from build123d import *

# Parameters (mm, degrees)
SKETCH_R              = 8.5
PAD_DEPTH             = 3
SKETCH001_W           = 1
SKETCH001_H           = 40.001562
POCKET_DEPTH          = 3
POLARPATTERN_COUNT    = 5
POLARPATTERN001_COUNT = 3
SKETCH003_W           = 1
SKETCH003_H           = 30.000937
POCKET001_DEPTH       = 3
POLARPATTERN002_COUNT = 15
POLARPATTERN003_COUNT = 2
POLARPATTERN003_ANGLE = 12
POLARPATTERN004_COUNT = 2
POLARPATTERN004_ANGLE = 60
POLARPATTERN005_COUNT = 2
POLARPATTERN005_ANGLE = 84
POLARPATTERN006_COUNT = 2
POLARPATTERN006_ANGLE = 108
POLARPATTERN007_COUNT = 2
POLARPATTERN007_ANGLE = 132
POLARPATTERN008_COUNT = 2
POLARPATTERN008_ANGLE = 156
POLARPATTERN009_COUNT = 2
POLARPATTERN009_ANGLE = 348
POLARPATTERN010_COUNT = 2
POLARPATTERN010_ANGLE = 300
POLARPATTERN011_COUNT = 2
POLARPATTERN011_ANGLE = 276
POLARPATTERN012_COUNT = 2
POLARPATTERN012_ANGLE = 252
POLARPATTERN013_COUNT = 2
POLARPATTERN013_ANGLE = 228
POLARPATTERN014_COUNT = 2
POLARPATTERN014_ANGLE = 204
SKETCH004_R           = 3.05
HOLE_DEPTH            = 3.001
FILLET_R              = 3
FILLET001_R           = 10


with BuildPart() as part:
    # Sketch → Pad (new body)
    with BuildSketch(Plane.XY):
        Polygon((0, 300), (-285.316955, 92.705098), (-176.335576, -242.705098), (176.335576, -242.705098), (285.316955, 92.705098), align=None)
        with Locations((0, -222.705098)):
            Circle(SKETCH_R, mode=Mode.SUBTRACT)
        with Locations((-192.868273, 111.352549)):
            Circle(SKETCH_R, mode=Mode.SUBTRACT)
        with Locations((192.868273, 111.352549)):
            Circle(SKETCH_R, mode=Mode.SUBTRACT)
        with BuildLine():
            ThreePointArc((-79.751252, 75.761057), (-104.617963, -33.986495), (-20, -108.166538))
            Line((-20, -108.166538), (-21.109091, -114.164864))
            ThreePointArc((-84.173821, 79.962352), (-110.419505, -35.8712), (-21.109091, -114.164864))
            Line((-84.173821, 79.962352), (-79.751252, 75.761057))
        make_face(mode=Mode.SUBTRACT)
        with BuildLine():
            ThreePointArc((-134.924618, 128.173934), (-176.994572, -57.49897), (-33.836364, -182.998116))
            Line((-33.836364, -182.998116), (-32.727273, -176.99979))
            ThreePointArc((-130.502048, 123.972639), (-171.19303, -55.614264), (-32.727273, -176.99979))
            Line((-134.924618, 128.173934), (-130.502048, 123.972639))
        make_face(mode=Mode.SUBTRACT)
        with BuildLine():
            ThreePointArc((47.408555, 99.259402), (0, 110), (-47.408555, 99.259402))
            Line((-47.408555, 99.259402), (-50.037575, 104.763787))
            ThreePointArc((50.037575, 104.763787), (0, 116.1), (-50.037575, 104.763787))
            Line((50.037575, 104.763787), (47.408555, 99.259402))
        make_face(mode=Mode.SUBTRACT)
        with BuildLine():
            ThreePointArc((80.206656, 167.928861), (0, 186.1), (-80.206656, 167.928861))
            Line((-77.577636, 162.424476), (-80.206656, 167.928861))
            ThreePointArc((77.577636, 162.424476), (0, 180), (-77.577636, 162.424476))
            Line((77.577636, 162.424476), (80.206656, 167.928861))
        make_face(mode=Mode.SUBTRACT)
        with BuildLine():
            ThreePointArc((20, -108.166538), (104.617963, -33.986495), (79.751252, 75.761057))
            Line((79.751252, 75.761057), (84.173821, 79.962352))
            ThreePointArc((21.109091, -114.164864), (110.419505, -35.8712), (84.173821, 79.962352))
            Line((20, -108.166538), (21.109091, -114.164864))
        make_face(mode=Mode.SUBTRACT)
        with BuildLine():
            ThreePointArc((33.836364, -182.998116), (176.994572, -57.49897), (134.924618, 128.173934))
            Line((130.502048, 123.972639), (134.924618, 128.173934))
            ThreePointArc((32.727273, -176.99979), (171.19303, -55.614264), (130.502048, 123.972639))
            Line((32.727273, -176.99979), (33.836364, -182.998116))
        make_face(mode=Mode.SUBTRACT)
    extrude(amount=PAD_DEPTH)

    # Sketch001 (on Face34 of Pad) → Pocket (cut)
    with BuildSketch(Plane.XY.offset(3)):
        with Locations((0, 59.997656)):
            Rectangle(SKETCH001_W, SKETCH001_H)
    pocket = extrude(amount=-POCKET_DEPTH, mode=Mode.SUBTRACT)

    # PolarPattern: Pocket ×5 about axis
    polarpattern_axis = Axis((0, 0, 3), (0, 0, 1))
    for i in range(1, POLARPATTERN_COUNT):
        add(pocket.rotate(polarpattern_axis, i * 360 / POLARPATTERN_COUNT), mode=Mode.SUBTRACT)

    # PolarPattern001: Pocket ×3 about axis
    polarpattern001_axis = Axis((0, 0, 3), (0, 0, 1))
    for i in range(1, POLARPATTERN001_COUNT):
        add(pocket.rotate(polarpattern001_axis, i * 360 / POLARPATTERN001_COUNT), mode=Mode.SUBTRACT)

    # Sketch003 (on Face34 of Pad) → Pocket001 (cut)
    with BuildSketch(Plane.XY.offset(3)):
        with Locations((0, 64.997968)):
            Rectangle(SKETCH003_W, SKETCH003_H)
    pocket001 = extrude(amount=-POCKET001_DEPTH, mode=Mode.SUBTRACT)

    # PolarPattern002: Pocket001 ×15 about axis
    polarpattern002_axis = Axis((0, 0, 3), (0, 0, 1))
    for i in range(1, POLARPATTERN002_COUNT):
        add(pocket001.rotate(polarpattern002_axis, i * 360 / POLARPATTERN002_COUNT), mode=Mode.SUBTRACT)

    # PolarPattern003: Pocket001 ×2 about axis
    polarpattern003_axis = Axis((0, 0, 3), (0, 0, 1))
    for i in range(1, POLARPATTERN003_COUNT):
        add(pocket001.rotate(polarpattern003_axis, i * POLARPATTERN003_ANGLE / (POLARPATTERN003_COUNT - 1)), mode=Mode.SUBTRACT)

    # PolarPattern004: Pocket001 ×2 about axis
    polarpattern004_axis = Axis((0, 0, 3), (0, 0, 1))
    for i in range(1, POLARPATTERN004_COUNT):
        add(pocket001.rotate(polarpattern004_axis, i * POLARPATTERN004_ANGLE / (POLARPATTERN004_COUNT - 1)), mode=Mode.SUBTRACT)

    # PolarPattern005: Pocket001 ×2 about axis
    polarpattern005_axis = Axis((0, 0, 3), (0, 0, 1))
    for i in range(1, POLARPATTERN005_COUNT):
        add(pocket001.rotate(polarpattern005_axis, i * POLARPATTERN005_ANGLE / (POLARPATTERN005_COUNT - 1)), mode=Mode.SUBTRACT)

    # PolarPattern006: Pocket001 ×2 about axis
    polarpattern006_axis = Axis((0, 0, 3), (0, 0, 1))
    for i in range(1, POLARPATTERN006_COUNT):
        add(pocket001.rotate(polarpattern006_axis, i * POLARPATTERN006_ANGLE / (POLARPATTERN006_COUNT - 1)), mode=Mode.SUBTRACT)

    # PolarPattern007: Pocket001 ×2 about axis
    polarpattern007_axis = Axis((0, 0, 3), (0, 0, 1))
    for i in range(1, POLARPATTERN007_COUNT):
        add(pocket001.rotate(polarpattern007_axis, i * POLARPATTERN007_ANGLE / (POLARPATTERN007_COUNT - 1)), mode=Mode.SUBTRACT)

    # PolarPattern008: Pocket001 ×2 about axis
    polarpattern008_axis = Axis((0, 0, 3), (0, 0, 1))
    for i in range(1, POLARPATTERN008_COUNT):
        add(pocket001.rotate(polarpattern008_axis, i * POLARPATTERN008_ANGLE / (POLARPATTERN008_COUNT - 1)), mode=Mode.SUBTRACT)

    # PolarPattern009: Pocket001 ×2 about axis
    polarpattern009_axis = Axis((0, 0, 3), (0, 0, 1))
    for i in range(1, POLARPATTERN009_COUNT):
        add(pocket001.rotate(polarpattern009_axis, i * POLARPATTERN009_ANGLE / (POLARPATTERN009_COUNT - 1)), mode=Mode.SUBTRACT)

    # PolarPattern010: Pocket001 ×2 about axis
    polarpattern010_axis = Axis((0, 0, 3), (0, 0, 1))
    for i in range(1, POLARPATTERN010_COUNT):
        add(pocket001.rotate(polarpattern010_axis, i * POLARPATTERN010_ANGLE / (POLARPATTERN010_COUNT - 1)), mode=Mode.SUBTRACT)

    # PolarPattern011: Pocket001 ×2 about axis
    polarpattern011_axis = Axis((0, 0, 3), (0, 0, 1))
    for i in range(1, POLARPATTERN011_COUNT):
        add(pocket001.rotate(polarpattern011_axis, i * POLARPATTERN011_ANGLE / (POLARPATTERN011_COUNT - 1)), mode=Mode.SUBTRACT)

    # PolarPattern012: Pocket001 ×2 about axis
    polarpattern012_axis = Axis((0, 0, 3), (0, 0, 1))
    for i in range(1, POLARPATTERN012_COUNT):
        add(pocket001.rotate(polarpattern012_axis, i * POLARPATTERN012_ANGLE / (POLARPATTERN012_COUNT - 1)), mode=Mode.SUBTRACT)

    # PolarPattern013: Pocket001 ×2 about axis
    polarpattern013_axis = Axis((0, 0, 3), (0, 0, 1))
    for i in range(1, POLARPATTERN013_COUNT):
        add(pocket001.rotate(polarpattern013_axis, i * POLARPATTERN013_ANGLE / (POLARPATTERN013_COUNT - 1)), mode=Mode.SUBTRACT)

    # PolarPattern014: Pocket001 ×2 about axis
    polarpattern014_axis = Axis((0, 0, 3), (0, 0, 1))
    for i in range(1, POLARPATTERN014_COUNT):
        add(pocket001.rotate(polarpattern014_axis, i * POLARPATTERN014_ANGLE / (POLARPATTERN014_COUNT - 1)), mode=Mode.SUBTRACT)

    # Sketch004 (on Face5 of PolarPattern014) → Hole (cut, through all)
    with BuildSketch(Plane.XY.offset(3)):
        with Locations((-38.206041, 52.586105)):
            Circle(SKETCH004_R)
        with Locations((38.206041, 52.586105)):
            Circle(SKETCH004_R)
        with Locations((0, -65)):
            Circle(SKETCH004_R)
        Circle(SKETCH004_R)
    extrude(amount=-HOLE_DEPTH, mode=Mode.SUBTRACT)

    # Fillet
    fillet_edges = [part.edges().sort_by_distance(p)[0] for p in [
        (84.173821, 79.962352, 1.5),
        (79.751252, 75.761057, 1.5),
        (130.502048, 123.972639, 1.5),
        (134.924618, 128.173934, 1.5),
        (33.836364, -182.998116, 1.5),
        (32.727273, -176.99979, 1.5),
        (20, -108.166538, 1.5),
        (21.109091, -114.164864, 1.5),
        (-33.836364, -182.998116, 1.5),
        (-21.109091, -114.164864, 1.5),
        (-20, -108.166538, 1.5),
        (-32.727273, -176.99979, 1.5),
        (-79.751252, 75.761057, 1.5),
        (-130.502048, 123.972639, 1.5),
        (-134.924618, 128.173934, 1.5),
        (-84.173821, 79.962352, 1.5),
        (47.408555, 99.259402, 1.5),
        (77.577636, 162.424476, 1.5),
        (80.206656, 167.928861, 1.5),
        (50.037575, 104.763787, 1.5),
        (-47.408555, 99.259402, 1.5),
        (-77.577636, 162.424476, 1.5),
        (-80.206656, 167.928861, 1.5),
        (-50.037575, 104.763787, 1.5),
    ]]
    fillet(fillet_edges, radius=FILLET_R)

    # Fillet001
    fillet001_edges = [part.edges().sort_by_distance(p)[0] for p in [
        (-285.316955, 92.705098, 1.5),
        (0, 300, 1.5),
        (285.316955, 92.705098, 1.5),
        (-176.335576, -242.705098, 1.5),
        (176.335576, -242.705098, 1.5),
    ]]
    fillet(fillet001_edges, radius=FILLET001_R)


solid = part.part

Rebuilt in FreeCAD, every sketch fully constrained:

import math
import FreeCAD as App
import Part
import Sketcher

V = App.Vector
Q = App.Units.Quantity


def edges_at(feature, points):
    """Names of the edges that pass closest to the given points."""
    edges = feature.Shape.Edges
    near = lambda p: min(range(len(edges)), key=lambda i: edges[i].distToShape(Part.Vertex(*p))[0])
    return sorted({f"Edge{near(p) + 1}" for p in points})


def add_polygon(sketch, points):
    """Adds a closed chain of lines whose ends are joined by coincident constraints."""
    first, n = sketch.GeometryCount, len(points)
    for a, b in zip(points, points[1:] + points[:1]):
        sketch.addGeometry(Part.LineSegment(App.Vector(*a, 0), App.Vector(*b, 0)), False)
    for i in range(n):
        sketch.addConstraint(Sketcher.Constraint("Coincident", first + i, 2, first + (i + 1) % n, 1))

doc = App.newDocument("Part")
body = doc.addObject("PartDesign::Body", "Body")

sketch1 = body.newObject("Sketcher::SketchObject", "Sketch")
sketch1.AttachmentSupport = (doc.getObject("XY_Plane"), [""])
sketch1.MapMode = "FlatFace"
add_polygon(sketch1, [(0, 300), (-285, 93), (-176, -243), (176, -243), (285, 93)])
sketch1.addGeometry(Part.Circle(V(0, -223, 0), V(0, 0, 1), 8), False)
sketch1.addGeometry(Part.ArcOfCircle(Part.Circle(V(0, 0, 0), V(0, 0, 1), 186), math.radians(136), math.radians(260)), False)
sketch1.addGeometry(Part.LineSegment(V(-135, 128, 0), V(-131, 124, 0)), False)
sketch1.addGeometry(Part.ArcOfCircle(Part.Circle(V(0, 0, 0), V(0, 0, 1), 180), math.radians(136), math.radians(260)), False)
sketch1.addGeometry(Part.LineSegment(V(-33, -177, 0), V(-34, -183, 0)), False)
sketch1.addGeometry(Part.ArcOfCircle(Part.Circle(V(0, 0, 0), V(0, 0, 1), 186), math.radians(-80), math.radians(44)), False)
sketch1.addGeometry(Part.LineSegment(V(34, -183, 0), V(33, -177, 0)), False)
sketch1.addGeometry(Part.ArcOfCircle(Part.Circle(V(0, 0, 0), V(0, 0, 1), 180), math.radians(-80), math.radians(44)), False)
sketch1.addGeometry(Part.LineSegment(V(131, 124, 0), V(135, 128, 0)), False)
sketch1.addGeometry(Part.LineSegment(V(-84, 80, 0), V(-80, 76, 0)), False)
sketch1.addGeometry(Part.ArcOfCircle(Part.Circle(V(0, 0, 0), V(0, 0, 1), 110), math.radians(136), math.radians(260)), False)
sketch1.addGeometry(Part.LineSegment(V(-20, -108, 0), V(-21, -114, 0)), False)
sketch1.addGeometry(Part.ArcOfCircle(Part.Circle(V(0, 0, 0), V(0, 0, 1), 116), math.radians(136), math.radians(260)), False)
sketch1.addGeometry(Part.Circle(V(-193, 111, 0), V(0, 0, 1), 8), False)
sketch1.addGeometry(Part.LineSegment(V(50, 105, 0), V(47, 99, 0)), False)
sketch1.addGeometry(Part.ArcOfCircle(Part.Circle(V(0, 0, 0), V(0, 0, 1), 110), math.radians(64), math.radians(116)), False)
sketch1.addGeometry(Part.LineSegment(V(-47, 99, 0), V(-50, 105, 0)), False)
sketch1.addGeometry(Part.ArcOfCircle(Part.Circle(V(0, 0, 0), V(0, 0, 1), 116), math.radians(64), math.radians(116)), False)
sketch1.addGeometry(Part.ArcOfCircle(Part.Circle(V(0, 0, 0), V(0, 0, 1), 186), math.radians(64), math.radians(116)), False)
sketch1.addGeometry(Part.LineSegment(V(80, 168, 0), V(78, 162, 0)), False)
sketch1.addGeometry(Part.ArcOfCircle(Part.Circle(V(0, 0, 0), V(0, 0, 1), 180), math.radians(64), math.radians(116)), False)
sketch1.addGeometry(Part.LineSegment(V(-78, 162, 0), V(-80, 168, 0)), False)
sketch1.addGeometry(Part.LineSegment(V(21, -114, 0), V(20, -108, 0)), False)
sketch1.addGeometry(Part.ArcOfCircle(Part.Circle(V(0, 0, 0), V(0, 0, 1), 110), math.radians(-80), math.radians(44)), False)
sketch1.addGeometry(Part.LineSegment(V(80, 76, 0), V(84, 80, 0)), False)
sketch1.addGeometry(Part.ArcOfCircle(Part.Circle(V(0, 0, 0), V(0, 0, 1), 116), math.radians(-80), math.radians(44)), False)
sketch1.addGeometry(Part.Circle(V(193, 111, 0), V(0, 0, 1), 8), False)
sketch1.addConstraint(Sketcher.Constraint("Coincident", 6, 1, 7, 1))
sketch1.addConstraint(Sketcher.Constraint("Coincident", 7, 2, 8, 1))
sketch1.addConstraint(Sketcher.Constraint("Coincident", 8, 2, 9, 1))
sketch1.addConstraint(Sketcher.Constraint("Coincident", 9, 2, 6, 2))
sketch1.addConstraint(Sketcher.Constraint("Coincident", 10, 1, 11, 1))
sketch1.addConstraint(Sketcher.Constraint("Coincident", 11, 2, 12, 1))
sketch1.addConstraint(Sketcher.Constraint("Coincident", 12, 2, 13, 1))
sketch1.addConstraint(Sketcher.Constraint("Coincident", 13, 2, 10, 2))
sketch1.addConstraint(Sketcher.Constraint("Coincident", 14, 2, 15, 1))
sketch1.addConstraint(Sketcher.Constraint("Coincident", 15, 2, 16, 1))
sketch1.addConstraint(Sketcher.Constraint("Coincident", 16, 2, 17, 2))
sketch1.addConstraint(Sketcher.Constraint("Coincident", 17, 1, 14, 1))
sketch1.addConstraint(Sketcher.Constraint("Coincident", 19, 2, 20, 1))
sketch1.addConstraint(Sketcher.Constraint("Coincident", 20, 2, 21, 1))
sketch1.addConstraint(Sketcher.Constraint("Coincident", 21, 2, 22, 2))
sketch1.addConstraint(Sketcher.Constraint("Coincident", 22, 1, 19, 1))
sketch1.addConstraint(Sketcher.Constraint("Coincident", 23, 1, 24, 1))
sketch1.addConstraint(Sketcher.Constraint("Coincident", 24, 2, 25, 1))
sketch1.addConstraint(Sketcher.Constraint("Coincident", 25, 2, 26, 1))
sketch1.addConstraint(Sketcher.Constraint("Coincident", 26, 2, 23, 2))
sketch1.addConstraint(Sketcher.Constraint("Coincident", 27, 2, 28, 1))
sketch1.addConstraint(Sketcher.Constraint("Coincident", 28, 2, 29, 1))
sketch1.addConstraint(Sketcher.Constraint("Coincident", 29, 2, 30, 2))
sketch1.addConstraint(Sketcher.Constraint("Coincident", 30, 1, 27, 1))
sketch1.addConstraint(Sketcher.Constraint("Horizontal", 2))
sketch1.addConstraint(Sketcher.Constraint("Coincident", 6, 3, -1, 1))
sketch1.addConstraint(Sketcher.Constraint("Coincident", 8, 3, -1, 1))
sketch1.addConstraint(Sketcher.Constraint("Coincident", 10, 3, -1, 1))
sketch1.addConstraint(Sketcher.Constraint("Coincident", 12, 3, -1, 1))
sketch1.addConstraint(Sketcher.Constraint("Coincident", 15, 3, -1, 1))
sketch1.addConstraint(Sketcher.Constraint("Coincident", 17, 3, -1, 1))
sketch1.addConstraint(Sketcher.Constraint("Coincident", 20, 3, -1, 1))
sketch1.addConstraint(Sketcher.Constraint("Coincident", 22, 3, -1, 1))
sketch1.addConstraint(Sketcher.Constraint("Coincident", 23, 3, -1, 1))
sketch1.addConstraint(Sketcher.Constraint("Coincident", 25, 3, -1, 1))
sketch1.addConstraint(Sketcher.Constraint("Coincident", 28, 3, -1, 1))
sketch1.addConstraint(Sketcher.Constraint("Coincident", 30, 3, -1, 1))
sketch1.addConstraint(Sketcher.Constraint("Equal", 6, 10))
sketch1.addConstraint(Sketcher.Constraint("Equal", 8, 12))
sketch1.addConstraint(Sketcher.Constraint("Equal", 5, 18))
sketch1.addConstraint(Sketcher.Constraint("Equal", 15, 20))
sketch1.addConstraint(Sketcher.Constraint("Equal", 17, 22))
sketch1.addConstraint(Sketcher.Constraint("Equal", 10, 23))
sketch1.addConstraint(Sketcher.Constraint("Equal", 12, 25))
sketch1.addConstraint(Sketcher.Constraint("Equal", 20, 28))
sketch1.addConstraint(Sketcher.Constraint("Equal", 22, 30))
sketch1.addConstraint(Sketcher.Constraint("Equal", 18, 31))
sketch1.addConstraint(Sketcher.Constraint("Symmetric", 18, 3, 31, 3, -2))
sketch1.addConstraint(Sketcher.Constraint("Symmetric", 0, 2, 3, 2, -2))
sketch1.addConstraint(Sketcher.Constraint("PointOnObject", 5, 3, -2))
sketch1.addConstraint(Sketcher.Constraint("PointOnObject", 4, 2, -2))
sketch1.addConstraint(Sketcher.Constraint("Parallel", 7, 14))
sketch1.addConstraint(Sketcher.Constraint("Parallel", 9, 16))
sketch1.addConstraint(Sketcher.Constraint("Parallel", 19, 24))
sketch1.addConstraint(Sketcher.Constraint("Parallel", 21, 26))
sketch1.addConstraint(Sketcher.Constraint("Parallel", 11, 27))
sketch1.addConstraint(Sketcher.Constraint("Parallel", 13, 29))
sketch1.addConstraint(Sketcher.Constraint("Horizontal", 9, 2, 10, 1))
sketch1.addConstraint(Sketcher.Constraint("Horizontal", 8, 2, 11, 2))
sketch1.addConstraint(Sketcher.Constraint("Horizontal", 7, 2, 12, 2))
sketch1.addConstraint(Sketcher.Constraint("Horizontal", 6, 1, 13, 2))
sketch1.addConstraint(Sketcher.Constraint("Horizontal", 19, 2, 20, 2))
sketch1.addConstraint(Sketcher.Constraint("Horizontal", 21, 2, 22, 1))
sketch1.addConstraint(Sketcher.Constraint("Horizontal", 24, 2, 25, 2))
sketch1.addConstraint(Sketcher.Constraint("Horizontal", 15, 2, 27, 2))
sketch1.addConstraint(Sketcher.Constraint("Horizontal", 14, 2, 28, 2))
sketch1.addConstraint(Sketcher.Constraint("Equal", 0, 1))
sketch1.addConstraint(Sketcher.Constraint("Equal", 1, 3))
sketch1.addConstraint(Sketcher.Constraint("Equal", 13, 14))
sketch1.addConstraint(Sketcher.Constraint("Diameter", 5, Q("17 mm")))
sketch1.addConstraint(Sketcher.Constraint("Radius", 8, Q("180 mm")))
sketch1.addConstraint(Sketcher.Constraint("Radius", 15, Q("109.999999 mm")))
sketch1.addConstraint(Sketcher.Constraint("Radius", 6, Q("186.1 mm")))
sketch1.addConstraint(Sketcher.Constraint("Angle", 0, Q("-144 deg")))
sketch1.addConstraint(Sketcher.Constraint("Angle", 1, Q("-72 deg")))
sketch1.addConstraint(Sketcher.Constraint("DistanceY", -1, 1, 4, 2, Q("300 mm")))
sketch1.addConstraint(Sketcher.Constraint("DistanceX", 15, 2, -1, 1, Q("20 mm")))
sketch1.addConstraint(Sketcher.Constraint("DistanceY", 1, 2, 5, 3, Q("20 mm")))
sketch1.addConstraint(Sketcher.Constraint("DistanceX", 2, 1, 2, 2, Q("352.671152 mm")))
sketch1.addConstraint(Sketcher.Constraint("DistanceY", -1, 1, 19, 2, Q("99.259402 mm")))
sketch1.addConstraint(Sketcher.Constraint("DistanceX", 19, 2, 23, 1, Q("32.798101 mm")))
sketch1.addConstraint(Sketcher.Constraint("DistanceY", -1, 1, 18, 3, Q("111.352549 mm")))
sketch1.addConstraint(Sketcher.Constraint("DistanceX", 7, 2, -1, 1, Q("130.502048 mm")))
sketch1.addConstraint(Sketcher.Constraint("DistanceY", 8, 2, -1, 1, Q("176.99979 mm")))
sketch1.addConstraint(Sketcher.Constraint("DistanceX", -1, 1, 13, 2, Q("134.924618 mm")))
sketch1.addConstraint(Sketcher.Constraint("DistanceX", 14, 2, -1, 1, Q("79.751252 mm")))
sketch1.addConstraint(Sketcher.Constraint("DistanceX", 16, 2, -1, 1, Q("21.109091 mm")))
sketch1.addConstraint(Sketcher.Constraint("DistanceX", 18, 3, 17, 3, Q("192.868272 mm")))
sketch1.addConstraint(Sketcher.Constraint("DistanceX", 21, 2, 20, 2, Q("2.62902 mm")))
pad1 = body.newObject("PartDesign::Pad", "Pad")
pad1.Profile = sketch1
pad1.Length = 3

sketch2 = body.newObject("Sketcher::SketchObject", "Sketch001")
sketch2.AttachmentSupport = (doc.getObject("XY_Plane"), [""])
sketch2.MapMode = "FlatFace"
sketch2.AttachmentOffset = App.Placement(V(0, 0, 3), App.Rotation())
add_polygon(sketch2, [(-0.5, 80), (-0.5, 40), (0.5, 40), (0.5, 80)])
sketch2.addConstraint(Sketcher.Constraint("Vertical", 0))
sketch2.addConstraint(Sketcher.Constraint("Horizontal", 1))
sketch2.addConstraint(Sketcher.Constraint("Vertical", 2))
sketch2.addConstraint(Sketcher.Constraint("Horizontal", 3))
sketch2.addConstraint(Sketcher.Constraint("DistanceX", 1, 1, 1, 2, Q("1 mm")))
sketch2.addConstraint(Sketcher.Constraint("DistanceX", 0, 2, -1, 1, Q("0.5 mm")))
sketch2.addConstraint(Sketcher.Constraint("DistanceY", 0, 2, 0, 1, Q("40.001562 mm")))
sketch2.addConstraint(Sketcher.Constraint("DistanceY", -1, 1, 0, 2, Q("39.996875 mm")))
pocket1 = body.newObject("PartDesign::Pocket", "Pocket")
pocket1.Profile = sketch2
pocket1.Length = 3
doc.recompute()

polarpattern = body.newObject("PartDesign::PolarPattern", "PolarPattern")
polarpattern.Originals = [pocket1]
polarpattern.Axis = (doc.getObject("Z_Axis"), [""])
polarpattern.Angle = 360
polarpattern.Occurrences = 5
body.Tip = polarpattern
doc.recompute()

polarpattern2 = body.newObject("PartDesign::PolarPattern", "PolarPattern001")
polarpattern2.Originals = [pocket1]
polarpattern2.Axis = (doc.getObject("Z_Axis"), [""])
polarpattern2.Angle = 360
polarpattern2.Occurrences = 3
body.Tip = polarpattern2

sketch3 = body.newObject("Sketcher::SketchObject", "Sketch002")
sketch3.AttachmentSupport = (doc.getObject("XY_Plane"), [""])
sketch3.MapMode = "FlatFace"
sketch3.AttachmentOffset = App.Placement(V(0, 0, 3), App.Rotation())
add_polygon(sketch3, [(-0.5, 80), (-0.5, 50), (0.5, 50), (0.5, 80)])
sketch3.addConstraint(Sketcher.Constraint("Vertical", 0))
sketch3.addConstraint(Sketcher.Constraint("Horizontal", 1))
sketch3.addConstraint(Sketcher.Constraint("Vertical", 2))
sketch3.addConstraint(Sketcher.Constraint("Horizontal", 3))
sketch3.addConstraint(Sketcher.Constraint("DistanceX", 1, 1, 1, 2, Q("1 mm")))
sketch3.addConstraint(Sketcher.Constraint("DistanceX", 0, 2, -1, 1, Q("0.5 mm")))
sketch3.addConstraint(Sketcher.Constraint("DistanceY", -1, 1, 0, 2, Q("49.9975 mm")))
sketch3.addConstraint(Sketcher.Constraint("DistanceY", 0, 2, 0, 1, Q("30.000937 mm")))
pocket2 = body.newObject("PartDesign::Pocket", "Pocket001")
pocket2.Profile = sketch3
pocket2.Length = 3
doc.recompute()

polarpattern3 = body.newObject("PartDesign::PolarPattern", "PolarPattern002")
polarpattern3.Originals = [pocket2]
polarpattern3.Axis = (doc.getObject("Z_Axis"), [""])
polarpattern3.Angle = 360
polarpattern3.Occurrences = 15
body.Tip = polarpattern3
doc.recompute()

polarpattern4 = body.newObject("PartDesign::PolarPattern", "PolarPattern003")
polarpattern4.Originals = [pocket2]
polarpattern4.Axis = (doc.getObject("Z_Axis"), [""])
polarpattern4.Angle = 12
polarpattern4.Occurrences = 2
body.Tip = polarpattern4
doc.recompute()

polarpattern5 = body.newObject("PartDesign::PolarPattern", "PolarPattern004")
polarpattern5.Originals = [pocket2]
polarpattern5.Axis = (doc.getObject("Z_Axis"), [""])
polarpattern5.Angle = 60
polarpattern5.Occurrences = 2
body.Tip = polarpattern5
doc.recompute()

polarpattern6 = body.newObject("PartDesign::PolarPattern", "PolarPattern005")
polarpattern6.Originals = [pocket2]
polarpattern6.Axis = (doc.getObject("Z_Axis"), [""])
polarpattern6.Angle = 84
polarpattern6.Occurrences = 2
body.Tip = polarpattern6
doc.recompute()

polarpattern7 = body.newObject("PartDesign::PolarPattern", "PolarPattern006")
polarpattern7.Originals = [pocket2]
polarpattern7.Axis = (doc.getObject("Z_Axis"), [""])
polarpattern7.Angle = 108
polarpattern7.Occurrences = 2
body.Tip = polarpattern7
doc.recompute()

polarpattern8 = body.newObject("PartDesign::PolarPattern", "PolarPattern007")
polarpattern8.Originals = [pocket2]
polarpattern8.Axis = (doc.getObject("Z_Axis"), [""])
polarpattern8.Angle = 132
polarpattern8.Occurrences = 2
body.Tip = polarpattern8
doc.recompute()

polarpattern9 = body.newObject("PartDesign::PolarPattern", "PolarPattern008")
polarpattern9.Originals = [pocket2]
polarpattern9.Axis = (doc.getObject("Z_Axis"), [""])
polarpattern9.Angle = 156
polarpattern9.Occurrences = 2
body.Tip = polarpattern9
doc.recompute()

polarpattern10 = body.newObject("PartDesign::PolarPattern", "PolarPattern009")
polarpattern10.Originals = [pocket2]
polarpattern10.Axis = (doc.getObject("Z_Axis"), [""])
polarpattern10.Angle = 348
polarpattern10.Occurrences = 2
body.Tip = polarpattern10
doc.recompute()

polarpattern11 = body.newObject("PartDesign::PolarPattern", "PolarPattern010")
polarpattern11.Originals = [pocket2]
polarpattern11.Axis = (doc.getObject("Z_Axis"), [""])
polarpattern11.Angle = 300
polarpattern11.Occurrences = 2
body.Tip = polarpattern11
doc.recompute()

polarpattern12 = body.newObject("PartDesign::PolarPattern", "PolarPattern011")
polarpattern12.Originals = [pocket2]
polarpattern12.Axis = (doc.getObject("Z_Axis"), [""])
polarpattern12.Angle = 276
polarpattern12.Occurrences = 2
body.Tip = polarpattern12
doc.recompute()

polarpattern13 = body.newObject("PartDesign::PolarPattern", "PolarPattern012")
polarpattern13.Originals = [pocket2]
polarpattern13.Axis = (doc.getObject("Z_Axis"), [""])
polarpattern13.Angle = 252
polarpattern13.Occurrences = 2
body.Tip = polarpattern13
doc.recompute()

polarpattern14 = body.newObject("PartDesign::PolarPattern", "PolarPattern013")
polarpattern14.Originals = [pocket2]
polarpattern14.Axis = (doc.getObject("Z_Axis"), [""])
polarpattern14.Angle = 228
polarpattern14.Occurrences = 2
body.Tip = polarpattern14
doc.recompute()

polarpattern15 = body.newObject("PartDesign::PolarPattern", "PolarPattern014")
polarpattern15.Originals = [pocket2]
polarpattern15.Axis = (doc.getObject("Z_Axis"), [""])
polarpattern15.Angle = 204
polarpattern15.Occurrences = 2
body.Tip = polarpattern15

sketch4 = body.newObject("Sketcher::SketchObject", "Sketch003")
sketch4.AttachmentSupport = (doc.getObject("XY_Plane"), [""])
sketch4.MapMode = "FlatFace"
sketch4.AttachmentOffset = App.Placement(V(0, 0, 3), App.Rotation())
sketch4.addGeometry(Part.Circle(V(-38.2, 52.6, 0), V(0, 0, 1), 3), False)
sketch4.addGeometry(Part.Circle(V(38.2, 52.6, 0), V(0, 0, 1), 3), False)
sketch4.addGeometry(Part.Circle(V(0, -65, 0), V(0, 0, 1), 3), False)
sketch4.addGeometry(Part.Circle(V(0, 0, 0), V(0, 0, 1), 3), False)
sketch4.addConstraint(Sketcher.Constraint("Coincident", 3, 3, -1, 1))
sketch4.addConstraint(Sketcher.Constraint("Equal", 0, 1))
sketch4.addConstraint(Sketcher.Constraint("Equal", 1, 2))
sketch4.addConstraint(Sketcher.Constraint("Equal", 2, 3))
sketch4.addConstraint(Sketcher.Constraint("Symmetric", 0, 3, 1, 3, -2))
sketch4.addConstraint(Sketcher.Constraint("PointOnObject", 2, 3, -2))
sketch4.addConstraint(Sketcher.Constraint("Diameter", 0, Q("6.1 mm")))
sketch4.addConstraint(Sketcher.Constraint("DistanceY", 2, 3, -1, 1, Q("65 mm")))
sketch4.addConstraint(Sketcher.Constraint("DistanceX", 0, 3, -1, 1, Q("38.206041 mm")))
sketch4.addConstraint(Sketcher.Constraint("DistanceY", -1, 1, 0, 3, Q("52.586105 mm")))
pocket3 = body.newObject("PartDesign::Pocket", "Pocket002")
pocket3.Profile = sketch4
pocket3.Type = "ThroughAll"
doc.recompute()

fillet = body.newObject("PartDesign::Fillet", "Fillet")
fillet.Base = (pocket3, edges_at(pocket3, [
    (84.174, 79.962, 1.5),
    (79.751, 75.761, 1.5),
    (130.502, 123.973, 1.5),
    (134.925, 128.174, 1.5),
    (33.836, -182.998, 1.5),
    (32.727, -177, 1.5),
    (20, -108.167, 1.5),
    (21.109, -114.165, 1.5),
    (-33.836, -182.998, 1.5),
    (-21.109, -114.165, 1.5),
    (-20, -108.167, 1.5),
    (-32.727, -177, 1.5),
    (-79.751, 75.761, 1.5),
    (-130.502, 123.973, 1.5),
    (-134.925, 128.174, 1.5),
    (-84.174, 79.962, 1.5),
    (47.409, 99.259, 1.5),
    (77.578, 162.424, 1.5),
    (80.207, 167.929, 1.5),
    (50.038, 104.764, 1.5),
    (-47.409, 99.259, 1.5),
    (-77.578, 162.424, 1.5),
    (-80.207, 167.929, 1.5),
    (-50.038, 104.764, 1.5),
]))
fillet.Radius = 3
doc.recompute()

fillet2 = body.newObject("PartDesign::Fillet", "Fillet001")
fillet2.Base = (fillet, edges_at(fillet, [
    (-285.317, 92.705, 1.5),
    (0, 300, 1.5),
    (285.317, 92.705, 1.5),
    (-176.336, -242.705, 1.5),
    (176.336, -242.705, 1.5),
]))
fillet2.Radius = 10

doc.recompute()
